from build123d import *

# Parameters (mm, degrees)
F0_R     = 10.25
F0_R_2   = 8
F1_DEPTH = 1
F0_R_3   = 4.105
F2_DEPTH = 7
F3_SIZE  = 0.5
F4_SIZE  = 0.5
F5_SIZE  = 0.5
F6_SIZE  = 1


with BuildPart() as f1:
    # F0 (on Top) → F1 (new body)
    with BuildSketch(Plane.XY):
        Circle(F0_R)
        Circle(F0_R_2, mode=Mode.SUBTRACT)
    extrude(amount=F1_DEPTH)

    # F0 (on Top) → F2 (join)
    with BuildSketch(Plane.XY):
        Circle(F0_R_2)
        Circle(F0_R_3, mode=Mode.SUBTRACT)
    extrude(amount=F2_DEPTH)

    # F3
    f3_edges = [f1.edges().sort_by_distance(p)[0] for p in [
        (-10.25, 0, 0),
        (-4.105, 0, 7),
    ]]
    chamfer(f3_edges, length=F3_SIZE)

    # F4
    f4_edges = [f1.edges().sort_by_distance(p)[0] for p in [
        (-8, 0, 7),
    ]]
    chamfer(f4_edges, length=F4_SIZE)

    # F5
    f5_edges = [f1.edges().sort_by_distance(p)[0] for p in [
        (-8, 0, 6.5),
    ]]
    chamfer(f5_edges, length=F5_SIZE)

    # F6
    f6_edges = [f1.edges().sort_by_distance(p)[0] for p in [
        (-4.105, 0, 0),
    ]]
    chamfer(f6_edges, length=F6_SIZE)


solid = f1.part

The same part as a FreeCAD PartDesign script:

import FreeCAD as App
import Part
import Sketcher
Q = App.Units.Quantity


def edges_at(feature, points):
    """Names of the edges that pass closest to the given points."""
    edges = feature.Shape.Edges
    near = lambda p: min(range(len(edges)), key=lambda i: edges[i].distToShape(Part.Vertex(*p))[0])
    return sorted({f"Edge{near(p) + 1}" for p in points})

doc = App.newDocument("Part")
body = doc.addObject("PartDesign::Body", "Body")

sketch1 = body.newObject("Sketcher::SketchObject", "Sketch")
sketch1.AttachmentSupport = (doc.getObject("XY_Plane"), [""])
sketch1.MapMode = "FlatFace"
sketch1.addGeometry(Part.Circle(App.Vector(0, 0, 0), App.Vector(0, 0, 1), 10), False)
sketch1.addGeometry(Part.Circle(App.Vector(0, 0, 0), App.Vector(0, 0, 1), 8), False)
sketch1.addConstraint(Sketcher.Constraint("Coincident", 0, 3, -1, 1))
sketch1.addConstraint(Sketcher.Constraint("Coincident", 1, 3, -1, 1))
sketch1.addConstraint(Sketcher.Constraint("Diameter", 1, Q("16 mm")))
sketch1.addConstraint(Sketcher.Constraint("Diameter", 0, Q("20.5 mm")))
pad1 = body.newObject("PartDesign::Pad", "Pad")
pad1.Profile = sketch1
pad1.Length = 1

sketch2 = body.newObject("Sketcher::SketchObject", "Sketch001")
sketch2.AttachmentSupport = (doc.getObject("XY_Plane"), [""])
sketch2.MapMode = "FlatFace"
sketch2.addGeometry(Part.Circle(App.Vector(0, 0, 0), App.Vector(0, 0, 1), 8), False)
sketch2.addGeometry(Part.Circle(App.Vector(0, 0, 0), App.Vector(0, 0, 1), 4.1), False)
sketch2.addConstraint(Sketcher.Constraint("Coincident", 0, 3, -1, 1))
sketch2.addConstraint(Sketcher.Constraint("Coincident", 1, 3, -1, 1))
sketch2.addConstraint(Sketcher.Constraint("Diameter", 0, Q("16 mm")))
sketch2.addConstraint(Sketcher.Constraint("Diameter", 1, Q("8.21 mm")))
pad2 = body.newObject("PartDesign::Pad", "Pad001")
pad2.Profile = sketch2
pad2.Length = 7
doc.recompute()

chamfer = body.newObject("PartDesign::Chamfer", "Chamfer")
chamfer.Base = (pad2, edges_at(pad2, [(-10.25, 0, 0), (-4.105, 0, 7)]))
chamfer.Size = 0.5
doc.recompute()

chamfer2 = body.newObject("PartDesign::Chamfer", "Chamfer001")
chamfer2.Base = (chamfer, edges_at(chamfer, [(-8, 0, 7)]))
chamfer2.Size = 0.5
doc.recompute()

chamfer3 = body.newObject("PartDesign::Chamfer", "Chamfer002")
chamfer3.Base = (chamfer2, edges_at(chamfer2, [(-8, 0, 6.5)]))
chamfer3.Size = 0.5
doc.recompute()

chamfer4 = body.newObject("PartDesign::Chamfer", "Chamfer003")
chamfer4.Base = (chamfer3, edges_at(chamfer3, [(-4.105, 0, 0)]))
chamfer4.Size = 1

doc.recompute()
